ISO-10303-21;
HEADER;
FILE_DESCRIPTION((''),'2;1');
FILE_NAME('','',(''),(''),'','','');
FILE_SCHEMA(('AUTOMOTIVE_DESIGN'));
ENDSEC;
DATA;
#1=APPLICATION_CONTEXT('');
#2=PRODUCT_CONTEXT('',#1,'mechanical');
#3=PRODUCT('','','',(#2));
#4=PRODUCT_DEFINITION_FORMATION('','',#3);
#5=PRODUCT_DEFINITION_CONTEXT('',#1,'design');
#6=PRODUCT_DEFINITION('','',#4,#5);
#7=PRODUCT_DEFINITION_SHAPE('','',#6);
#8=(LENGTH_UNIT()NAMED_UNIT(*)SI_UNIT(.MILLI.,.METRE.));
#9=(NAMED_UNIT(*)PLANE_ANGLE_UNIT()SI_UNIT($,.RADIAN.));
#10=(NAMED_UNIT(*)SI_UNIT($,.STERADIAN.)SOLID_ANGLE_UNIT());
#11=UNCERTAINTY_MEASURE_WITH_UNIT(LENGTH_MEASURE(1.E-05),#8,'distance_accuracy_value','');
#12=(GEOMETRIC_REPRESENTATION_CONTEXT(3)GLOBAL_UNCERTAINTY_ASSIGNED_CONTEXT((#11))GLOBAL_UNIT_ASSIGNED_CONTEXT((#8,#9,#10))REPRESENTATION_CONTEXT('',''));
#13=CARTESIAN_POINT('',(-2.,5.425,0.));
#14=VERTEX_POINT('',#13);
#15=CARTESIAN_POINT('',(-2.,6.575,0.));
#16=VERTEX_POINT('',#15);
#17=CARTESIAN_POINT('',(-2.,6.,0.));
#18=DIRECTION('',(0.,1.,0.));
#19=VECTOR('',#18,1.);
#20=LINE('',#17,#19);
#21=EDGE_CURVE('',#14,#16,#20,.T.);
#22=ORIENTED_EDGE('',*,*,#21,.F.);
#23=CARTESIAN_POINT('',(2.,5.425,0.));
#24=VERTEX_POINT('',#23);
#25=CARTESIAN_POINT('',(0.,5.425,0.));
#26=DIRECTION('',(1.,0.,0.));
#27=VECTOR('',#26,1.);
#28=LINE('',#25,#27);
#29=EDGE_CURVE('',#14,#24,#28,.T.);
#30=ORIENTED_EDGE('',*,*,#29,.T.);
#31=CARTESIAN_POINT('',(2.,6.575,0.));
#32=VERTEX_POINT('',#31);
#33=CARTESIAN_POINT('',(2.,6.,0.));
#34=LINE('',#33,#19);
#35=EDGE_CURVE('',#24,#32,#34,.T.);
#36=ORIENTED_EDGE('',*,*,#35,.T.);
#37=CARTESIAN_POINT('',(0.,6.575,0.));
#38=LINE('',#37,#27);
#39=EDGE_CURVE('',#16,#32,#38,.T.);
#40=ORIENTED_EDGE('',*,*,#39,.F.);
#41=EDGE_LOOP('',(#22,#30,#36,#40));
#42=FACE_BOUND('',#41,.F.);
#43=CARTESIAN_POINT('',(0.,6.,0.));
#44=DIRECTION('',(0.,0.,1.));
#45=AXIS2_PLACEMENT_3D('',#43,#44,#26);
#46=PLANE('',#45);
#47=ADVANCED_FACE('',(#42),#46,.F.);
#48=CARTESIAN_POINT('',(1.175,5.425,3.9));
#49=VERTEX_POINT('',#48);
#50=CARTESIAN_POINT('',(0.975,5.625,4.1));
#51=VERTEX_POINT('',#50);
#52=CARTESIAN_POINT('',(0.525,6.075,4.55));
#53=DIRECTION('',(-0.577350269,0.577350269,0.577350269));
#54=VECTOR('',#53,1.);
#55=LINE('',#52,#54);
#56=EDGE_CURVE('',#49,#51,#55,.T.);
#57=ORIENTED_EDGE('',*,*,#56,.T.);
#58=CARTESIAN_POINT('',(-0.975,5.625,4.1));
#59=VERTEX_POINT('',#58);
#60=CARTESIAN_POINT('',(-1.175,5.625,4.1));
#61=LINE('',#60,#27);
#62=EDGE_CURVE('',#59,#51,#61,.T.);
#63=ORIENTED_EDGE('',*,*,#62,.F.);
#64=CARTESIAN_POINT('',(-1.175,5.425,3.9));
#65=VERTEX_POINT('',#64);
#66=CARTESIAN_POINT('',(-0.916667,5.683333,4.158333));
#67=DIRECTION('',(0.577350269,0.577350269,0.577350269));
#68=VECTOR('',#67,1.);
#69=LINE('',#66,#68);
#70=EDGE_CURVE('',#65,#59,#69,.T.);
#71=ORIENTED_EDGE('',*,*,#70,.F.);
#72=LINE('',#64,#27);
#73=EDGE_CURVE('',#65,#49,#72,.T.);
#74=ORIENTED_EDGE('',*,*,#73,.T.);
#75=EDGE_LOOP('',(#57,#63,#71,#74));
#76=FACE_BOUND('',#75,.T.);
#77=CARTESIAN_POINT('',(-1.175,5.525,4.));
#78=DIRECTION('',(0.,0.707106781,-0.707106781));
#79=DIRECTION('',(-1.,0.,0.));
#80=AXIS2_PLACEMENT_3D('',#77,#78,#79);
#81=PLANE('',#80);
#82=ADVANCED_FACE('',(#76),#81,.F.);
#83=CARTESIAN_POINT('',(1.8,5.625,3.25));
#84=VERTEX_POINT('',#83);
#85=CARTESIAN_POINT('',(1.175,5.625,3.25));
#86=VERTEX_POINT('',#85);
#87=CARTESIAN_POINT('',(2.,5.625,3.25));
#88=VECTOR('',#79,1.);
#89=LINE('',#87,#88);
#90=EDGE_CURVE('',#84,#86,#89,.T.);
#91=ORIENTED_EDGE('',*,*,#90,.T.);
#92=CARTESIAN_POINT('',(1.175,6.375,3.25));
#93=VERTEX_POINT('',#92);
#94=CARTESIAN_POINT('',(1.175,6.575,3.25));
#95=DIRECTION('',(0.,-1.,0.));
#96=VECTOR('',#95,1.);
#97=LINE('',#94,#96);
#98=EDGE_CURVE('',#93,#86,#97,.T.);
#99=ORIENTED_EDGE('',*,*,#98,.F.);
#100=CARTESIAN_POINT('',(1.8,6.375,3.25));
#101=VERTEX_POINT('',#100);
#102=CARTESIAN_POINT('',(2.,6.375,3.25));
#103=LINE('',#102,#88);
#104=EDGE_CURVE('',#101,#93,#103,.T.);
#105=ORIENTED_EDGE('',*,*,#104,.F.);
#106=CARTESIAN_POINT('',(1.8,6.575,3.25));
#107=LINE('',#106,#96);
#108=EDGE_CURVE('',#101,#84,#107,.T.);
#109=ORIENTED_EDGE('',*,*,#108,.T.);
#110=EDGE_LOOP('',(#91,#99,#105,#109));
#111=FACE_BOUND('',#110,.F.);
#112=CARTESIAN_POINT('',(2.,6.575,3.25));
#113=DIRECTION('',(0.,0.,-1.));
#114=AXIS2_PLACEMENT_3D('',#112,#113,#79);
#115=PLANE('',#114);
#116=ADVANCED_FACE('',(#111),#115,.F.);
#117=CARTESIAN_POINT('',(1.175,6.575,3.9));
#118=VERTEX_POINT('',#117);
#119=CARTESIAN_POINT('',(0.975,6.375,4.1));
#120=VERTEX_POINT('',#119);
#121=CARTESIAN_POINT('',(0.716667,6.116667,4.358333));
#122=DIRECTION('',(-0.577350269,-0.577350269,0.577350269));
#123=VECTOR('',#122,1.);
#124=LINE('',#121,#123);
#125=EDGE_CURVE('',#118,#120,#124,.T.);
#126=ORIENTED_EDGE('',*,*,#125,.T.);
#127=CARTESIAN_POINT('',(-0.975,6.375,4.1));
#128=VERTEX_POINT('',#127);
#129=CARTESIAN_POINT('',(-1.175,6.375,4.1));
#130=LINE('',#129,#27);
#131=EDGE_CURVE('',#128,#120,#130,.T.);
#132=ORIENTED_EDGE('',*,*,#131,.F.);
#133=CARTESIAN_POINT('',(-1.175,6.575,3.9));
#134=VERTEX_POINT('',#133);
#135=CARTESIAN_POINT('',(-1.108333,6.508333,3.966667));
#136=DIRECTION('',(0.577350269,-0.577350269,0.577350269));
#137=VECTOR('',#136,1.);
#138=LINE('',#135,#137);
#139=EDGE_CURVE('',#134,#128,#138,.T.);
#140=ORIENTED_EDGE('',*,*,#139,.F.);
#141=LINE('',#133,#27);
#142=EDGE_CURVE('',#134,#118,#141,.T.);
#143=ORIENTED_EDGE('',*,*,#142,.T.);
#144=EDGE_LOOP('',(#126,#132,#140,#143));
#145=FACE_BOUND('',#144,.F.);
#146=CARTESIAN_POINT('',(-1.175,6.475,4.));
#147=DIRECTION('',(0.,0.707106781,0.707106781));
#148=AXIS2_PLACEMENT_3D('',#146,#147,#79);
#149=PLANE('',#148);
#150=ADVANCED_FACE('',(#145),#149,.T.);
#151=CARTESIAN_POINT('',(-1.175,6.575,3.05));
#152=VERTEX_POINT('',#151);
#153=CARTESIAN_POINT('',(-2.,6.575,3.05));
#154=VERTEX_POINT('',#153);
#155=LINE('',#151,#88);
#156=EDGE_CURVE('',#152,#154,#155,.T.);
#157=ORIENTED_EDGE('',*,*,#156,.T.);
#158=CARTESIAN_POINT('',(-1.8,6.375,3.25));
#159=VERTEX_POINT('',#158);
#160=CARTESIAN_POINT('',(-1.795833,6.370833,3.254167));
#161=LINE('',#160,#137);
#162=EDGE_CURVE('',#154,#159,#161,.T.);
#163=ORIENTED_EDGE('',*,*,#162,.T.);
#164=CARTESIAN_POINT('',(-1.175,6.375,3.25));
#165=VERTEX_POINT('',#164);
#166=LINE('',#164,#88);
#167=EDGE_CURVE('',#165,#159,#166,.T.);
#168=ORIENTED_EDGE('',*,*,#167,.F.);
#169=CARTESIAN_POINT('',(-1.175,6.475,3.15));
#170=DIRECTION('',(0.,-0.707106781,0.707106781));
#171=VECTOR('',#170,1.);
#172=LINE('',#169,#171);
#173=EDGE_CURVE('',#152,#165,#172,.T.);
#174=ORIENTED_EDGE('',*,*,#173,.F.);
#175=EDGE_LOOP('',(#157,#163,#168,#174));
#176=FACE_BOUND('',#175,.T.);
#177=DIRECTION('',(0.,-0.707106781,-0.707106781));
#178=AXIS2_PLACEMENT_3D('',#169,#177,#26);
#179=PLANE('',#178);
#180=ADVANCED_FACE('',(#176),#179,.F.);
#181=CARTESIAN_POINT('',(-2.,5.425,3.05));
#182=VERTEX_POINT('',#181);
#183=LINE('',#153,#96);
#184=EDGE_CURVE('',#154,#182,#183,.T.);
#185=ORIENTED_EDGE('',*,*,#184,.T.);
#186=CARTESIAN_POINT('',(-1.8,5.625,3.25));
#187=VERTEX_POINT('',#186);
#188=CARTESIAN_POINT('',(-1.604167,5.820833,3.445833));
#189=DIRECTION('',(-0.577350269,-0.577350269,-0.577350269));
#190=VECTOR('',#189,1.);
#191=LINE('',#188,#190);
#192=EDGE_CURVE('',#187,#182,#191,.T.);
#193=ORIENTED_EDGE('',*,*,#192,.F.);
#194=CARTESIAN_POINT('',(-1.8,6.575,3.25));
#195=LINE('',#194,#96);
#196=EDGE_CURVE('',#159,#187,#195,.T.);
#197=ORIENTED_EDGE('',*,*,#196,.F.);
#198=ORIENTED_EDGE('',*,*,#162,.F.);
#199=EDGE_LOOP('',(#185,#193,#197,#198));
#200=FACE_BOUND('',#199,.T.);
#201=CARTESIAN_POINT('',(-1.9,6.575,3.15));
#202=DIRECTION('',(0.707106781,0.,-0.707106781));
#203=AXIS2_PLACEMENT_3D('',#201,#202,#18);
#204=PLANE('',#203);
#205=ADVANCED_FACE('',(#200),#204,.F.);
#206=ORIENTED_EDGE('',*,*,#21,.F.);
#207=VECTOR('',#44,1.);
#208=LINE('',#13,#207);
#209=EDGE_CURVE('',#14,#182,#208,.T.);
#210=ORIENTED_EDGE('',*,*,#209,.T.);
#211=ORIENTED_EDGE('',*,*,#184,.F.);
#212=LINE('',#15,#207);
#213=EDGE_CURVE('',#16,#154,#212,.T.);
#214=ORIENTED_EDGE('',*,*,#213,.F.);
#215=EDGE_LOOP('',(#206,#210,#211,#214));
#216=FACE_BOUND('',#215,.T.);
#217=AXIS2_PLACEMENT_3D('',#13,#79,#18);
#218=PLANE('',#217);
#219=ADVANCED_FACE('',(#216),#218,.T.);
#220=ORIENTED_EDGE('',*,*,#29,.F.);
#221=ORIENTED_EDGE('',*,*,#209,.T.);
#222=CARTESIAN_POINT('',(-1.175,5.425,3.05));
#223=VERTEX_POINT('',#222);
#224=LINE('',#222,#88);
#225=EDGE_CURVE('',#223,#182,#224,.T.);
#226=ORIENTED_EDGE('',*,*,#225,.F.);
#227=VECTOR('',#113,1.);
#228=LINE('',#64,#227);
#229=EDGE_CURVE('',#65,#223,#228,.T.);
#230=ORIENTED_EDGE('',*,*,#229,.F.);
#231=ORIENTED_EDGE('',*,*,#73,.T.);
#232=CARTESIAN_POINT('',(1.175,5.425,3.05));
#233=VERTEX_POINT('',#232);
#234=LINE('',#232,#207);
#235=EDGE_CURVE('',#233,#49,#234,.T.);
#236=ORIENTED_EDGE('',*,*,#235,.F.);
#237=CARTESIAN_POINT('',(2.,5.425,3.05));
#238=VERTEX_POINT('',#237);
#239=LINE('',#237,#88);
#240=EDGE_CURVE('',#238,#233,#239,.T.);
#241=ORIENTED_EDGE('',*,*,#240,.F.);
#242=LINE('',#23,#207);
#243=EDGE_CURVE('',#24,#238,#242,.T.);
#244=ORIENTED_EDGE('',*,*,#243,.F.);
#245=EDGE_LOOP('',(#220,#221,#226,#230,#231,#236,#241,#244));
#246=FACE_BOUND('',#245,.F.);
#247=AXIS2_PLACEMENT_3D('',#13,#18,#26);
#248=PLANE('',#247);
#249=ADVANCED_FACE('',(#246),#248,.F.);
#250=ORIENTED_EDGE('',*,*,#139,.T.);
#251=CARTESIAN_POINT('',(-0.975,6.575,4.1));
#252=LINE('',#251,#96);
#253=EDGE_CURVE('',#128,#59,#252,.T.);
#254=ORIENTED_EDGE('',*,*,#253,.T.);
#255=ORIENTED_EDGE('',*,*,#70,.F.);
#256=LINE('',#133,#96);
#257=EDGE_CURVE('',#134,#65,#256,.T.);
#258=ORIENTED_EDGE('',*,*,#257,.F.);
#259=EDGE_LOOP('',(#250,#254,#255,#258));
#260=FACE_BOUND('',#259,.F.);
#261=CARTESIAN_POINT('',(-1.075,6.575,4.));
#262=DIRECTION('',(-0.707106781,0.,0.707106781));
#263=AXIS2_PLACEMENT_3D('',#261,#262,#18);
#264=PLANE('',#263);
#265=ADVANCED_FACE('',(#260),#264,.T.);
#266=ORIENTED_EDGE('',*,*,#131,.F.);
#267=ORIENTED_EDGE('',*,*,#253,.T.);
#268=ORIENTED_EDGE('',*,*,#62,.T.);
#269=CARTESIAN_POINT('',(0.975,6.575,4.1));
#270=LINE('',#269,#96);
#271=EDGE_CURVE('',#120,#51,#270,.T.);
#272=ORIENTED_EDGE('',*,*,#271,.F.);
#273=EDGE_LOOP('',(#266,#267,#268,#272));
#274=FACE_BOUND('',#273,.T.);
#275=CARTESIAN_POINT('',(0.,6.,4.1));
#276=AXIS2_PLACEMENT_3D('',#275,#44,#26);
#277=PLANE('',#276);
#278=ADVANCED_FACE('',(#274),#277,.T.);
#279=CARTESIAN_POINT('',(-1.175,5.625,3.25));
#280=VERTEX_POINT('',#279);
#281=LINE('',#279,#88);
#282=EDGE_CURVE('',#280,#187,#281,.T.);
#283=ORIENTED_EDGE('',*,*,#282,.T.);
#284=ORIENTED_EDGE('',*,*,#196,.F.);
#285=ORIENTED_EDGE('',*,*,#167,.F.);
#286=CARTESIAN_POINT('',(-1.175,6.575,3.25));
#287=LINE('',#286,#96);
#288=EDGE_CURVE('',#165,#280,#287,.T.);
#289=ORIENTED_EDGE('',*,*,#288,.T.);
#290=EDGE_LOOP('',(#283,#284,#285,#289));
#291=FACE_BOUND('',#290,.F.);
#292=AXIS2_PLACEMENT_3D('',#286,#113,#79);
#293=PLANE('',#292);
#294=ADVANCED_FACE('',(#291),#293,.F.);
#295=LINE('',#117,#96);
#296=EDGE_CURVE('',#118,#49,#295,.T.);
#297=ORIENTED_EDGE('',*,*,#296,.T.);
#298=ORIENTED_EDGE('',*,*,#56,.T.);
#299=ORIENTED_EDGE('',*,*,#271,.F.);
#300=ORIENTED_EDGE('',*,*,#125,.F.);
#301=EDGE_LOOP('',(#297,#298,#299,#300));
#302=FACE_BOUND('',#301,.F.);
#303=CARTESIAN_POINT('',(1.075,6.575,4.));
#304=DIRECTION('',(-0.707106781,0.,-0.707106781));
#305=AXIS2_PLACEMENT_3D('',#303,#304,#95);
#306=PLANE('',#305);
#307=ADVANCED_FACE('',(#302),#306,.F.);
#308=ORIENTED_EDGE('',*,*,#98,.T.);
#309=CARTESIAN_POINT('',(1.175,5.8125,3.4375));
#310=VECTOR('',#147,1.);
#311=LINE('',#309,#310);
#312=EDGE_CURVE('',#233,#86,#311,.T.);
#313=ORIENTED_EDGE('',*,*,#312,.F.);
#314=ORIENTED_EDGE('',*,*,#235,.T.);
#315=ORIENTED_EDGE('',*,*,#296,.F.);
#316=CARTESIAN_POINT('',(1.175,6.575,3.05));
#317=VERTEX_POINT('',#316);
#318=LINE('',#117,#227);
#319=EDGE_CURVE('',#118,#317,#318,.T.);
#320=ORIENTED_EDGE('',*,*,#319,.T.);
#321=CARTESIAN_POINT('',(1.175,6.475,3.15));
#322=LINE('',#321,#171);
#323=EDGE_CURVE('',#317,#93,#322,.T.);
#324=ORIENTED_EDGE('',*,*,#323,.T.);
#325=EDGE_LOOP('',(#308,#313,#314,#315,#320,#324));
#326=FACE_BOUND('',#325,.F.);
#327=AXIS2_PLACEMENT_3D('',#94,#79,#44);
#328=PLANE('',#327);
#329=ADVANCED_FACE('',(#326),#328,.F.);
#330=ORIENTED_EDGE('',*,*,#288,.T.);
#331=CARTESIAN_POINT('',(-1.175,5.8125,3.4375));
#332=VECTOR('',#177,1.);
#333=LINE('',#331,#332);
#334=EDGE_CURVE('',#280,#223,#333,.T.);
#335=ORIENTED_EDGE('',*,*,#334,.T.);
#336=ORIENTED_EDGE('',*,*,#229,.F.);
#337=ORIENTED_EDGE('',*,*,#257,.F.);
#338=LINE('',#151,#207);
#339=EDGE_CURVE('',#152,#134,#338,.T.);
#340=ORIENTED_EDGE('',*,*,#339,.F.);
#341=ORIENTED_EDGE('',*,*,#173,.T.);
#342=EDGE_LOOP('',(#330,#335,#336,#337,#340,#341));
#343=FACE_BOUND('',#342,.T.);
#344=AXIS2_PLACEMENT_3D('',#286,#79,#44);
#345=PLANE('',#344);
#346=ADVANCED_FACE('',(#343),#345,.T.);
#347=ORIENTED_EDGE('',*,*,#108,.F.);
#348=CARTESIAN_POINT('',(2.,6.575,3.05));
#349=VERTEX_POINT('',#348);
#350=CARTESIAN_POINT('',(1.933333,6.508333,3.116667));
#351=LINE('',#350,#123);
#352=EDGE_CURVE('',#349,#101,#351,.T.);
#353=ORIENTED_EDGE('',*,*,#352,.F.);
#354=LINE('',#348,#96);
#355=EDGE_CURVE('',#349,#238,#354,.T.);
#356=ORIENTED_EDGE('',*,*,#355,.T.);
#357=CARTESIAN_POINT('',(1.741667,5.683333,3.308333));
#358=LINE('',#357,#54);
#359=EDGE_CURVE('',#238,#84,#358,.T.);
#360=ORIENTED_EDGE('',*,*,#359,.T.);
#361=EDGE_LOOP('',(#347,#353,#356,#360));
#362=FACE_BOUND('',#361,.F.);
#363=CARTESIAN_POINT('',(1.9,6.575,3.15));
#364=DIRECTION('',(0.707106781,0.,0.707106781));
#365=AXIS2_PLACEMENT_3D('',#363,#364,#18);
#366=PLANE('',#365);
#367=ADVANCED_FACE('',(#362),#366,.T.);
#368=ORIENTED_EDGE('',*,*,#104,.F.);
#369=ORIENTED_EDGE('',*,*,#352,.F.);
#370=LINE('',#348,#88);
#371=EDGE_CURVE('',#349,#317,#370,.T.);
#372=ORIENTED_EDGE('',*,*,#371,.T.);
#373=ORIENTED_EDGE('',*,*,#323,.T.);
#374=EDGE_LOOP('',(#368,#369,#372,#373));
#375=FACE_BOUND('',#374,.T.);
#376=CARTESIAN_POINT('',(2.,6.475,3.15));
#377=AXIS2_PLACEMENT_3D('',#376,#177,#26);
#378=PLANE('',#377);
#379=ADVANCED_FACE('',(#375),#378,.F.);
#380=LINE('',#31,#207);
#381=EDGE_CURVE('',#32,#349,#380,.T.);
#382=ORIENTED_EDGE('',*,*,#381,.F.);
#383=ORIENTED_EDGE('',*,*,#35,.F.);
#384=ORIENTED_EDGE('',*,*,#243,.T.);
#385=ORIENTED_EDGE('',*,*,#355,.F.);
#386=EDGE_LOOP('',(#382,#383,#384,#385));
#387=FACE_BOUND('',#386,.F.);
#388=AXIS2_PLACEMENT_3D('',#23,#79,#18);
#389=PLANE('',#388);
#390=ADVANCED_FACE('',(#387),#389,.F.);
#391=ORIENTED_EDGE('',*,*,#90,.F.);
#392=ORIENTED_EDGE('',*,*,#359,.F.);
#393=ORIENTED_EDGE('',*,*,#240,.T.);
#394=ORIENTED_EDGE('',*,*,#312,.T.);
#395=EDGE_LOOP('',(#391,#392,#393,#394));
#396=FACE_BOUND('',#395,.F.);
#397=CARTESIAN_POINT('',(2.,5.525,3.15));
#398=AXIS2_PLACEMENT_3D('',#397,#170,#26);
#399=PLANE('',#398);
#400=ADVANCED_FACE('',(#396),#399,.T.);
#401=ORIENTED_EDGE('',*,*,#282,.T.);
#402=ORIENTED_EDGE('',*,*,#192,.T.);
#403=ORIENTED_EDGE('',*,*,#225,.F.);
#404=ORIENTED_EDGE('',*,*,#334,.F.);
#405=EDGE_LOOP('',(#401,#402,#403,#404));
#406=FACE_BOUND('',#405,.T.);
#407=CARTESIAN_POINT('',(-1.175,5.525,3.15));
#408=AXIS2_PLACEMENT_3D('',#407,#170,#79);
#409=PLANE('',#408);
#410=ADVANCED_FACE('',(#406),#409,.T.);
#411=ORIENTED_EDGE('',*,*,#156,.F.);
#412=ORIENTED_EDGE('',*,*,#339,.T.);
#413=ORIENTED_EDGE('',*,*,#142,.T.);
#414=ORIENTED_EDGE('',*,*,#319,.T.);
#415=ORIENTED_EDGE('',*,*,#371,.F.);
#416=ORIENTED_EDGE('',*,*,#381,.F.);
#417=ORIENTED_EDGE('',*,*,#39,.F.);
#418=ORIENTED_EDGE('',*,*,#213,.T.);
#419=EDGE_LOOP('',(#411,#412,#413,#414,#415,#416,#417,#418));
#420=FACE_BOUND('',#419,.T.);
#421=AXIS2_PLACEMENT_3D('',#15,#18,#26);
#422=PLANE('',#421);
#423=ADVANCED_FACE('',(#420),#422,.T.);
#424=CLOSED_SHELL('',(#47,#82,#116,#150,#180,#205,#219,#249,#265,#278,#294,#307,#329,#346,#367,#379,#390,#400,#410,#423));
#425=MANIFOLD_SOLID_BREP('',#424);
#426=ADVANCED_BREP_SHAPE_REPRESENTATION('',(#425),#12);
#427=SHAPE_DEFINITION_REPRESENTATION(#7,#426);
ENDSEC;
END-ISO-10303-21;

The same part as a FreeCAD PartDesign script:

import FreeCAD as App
import Part
import Sketcher

V = App.Vector


def edges_at(feature, points):
    """Names of the edges that pass closest to the given points."""
    edges = feature.Shape.Edges
    near = lambda p: min(range(len(edges)), key=lambda i: edges[i].distToShape(Part.Vertex(*p))[0])
    return sorted({f"Edge{near(p) + 1}" for p in points})

doc = App.newDocument("Part")
params = doc.addObject("Spreadsheet::Sheet", "Params")
for row, (alias, value) in enumerate([
    ("sketch1_width", "4 mm"),
    ("sketch1_height", "1.15 mm"),
    ("pad1_length", "4.1 mm"),
    ("sketch2_height", "0.85 mm"),
    ("pocket1_length", "5 mm"),
    ("chamfer_size", "0.2 mm"),
], start=1):
    params.set(f"A{row}", alias)
    params.set(f"B{row}", "=" + value)
    params.setAlias(f"B{row}", alias)

body = doc.addObject("PartDesign::Body", "Body")

# Sketch on XY plane
sketch1 = body.newObject("Sketcher::SketchObject", "Sketch")
sketch1.AttachmentSupport = (doc.getObject("XY_Plane"), [""])
sketch1.MapMode = "FlatFace"
sketch1.addGeometry([
    Part.LineSegment(V(-2, 0.575, 0), V(-2, -0.575, 0)),
    Part.LineSegment(V(-2, -0.575, 0), V(2, -0.575, 0)),
    Part.LineSegment(V(2, -0.575, 0), V(2, 0.575, 0)),
    Part.LineSegment(V(2, 0.575, 0), V(-2, 0.575, 0)),
], False)
sketch1.addConstraint([
    Sketcher.Constraint("Coincident", 0, 2, 1, 1),
    Sketcher.Constraint("Coincident", 1, 2, 2, 1),
    Sketcher.Constraint("Coincident", 2, 2, 3, 1),
    Sketcher.Constraint("Coincident", 3, 2, 0, 1),
    Sketcher.Constraint("Vertical", 0),
    Sketcher.Constraint("Horizontal", 1),
    Sketcher.Constraint("Vertical", 2),
    Sketcher.Constraint("Horizontal", 3),
    Sketcher.Constraint("Symmetric", 0, 2, 2, 2, -1, 1),
    Sketcher.Constraint("DistanceX", 1, 1, 1, 2, 4.0),
    Sketcher.Constraint("DistanceY", 0, 2, 0, 1, 1.15),
])
sketch1.setExpression("Constraints[9]", "Params.sketch1_width")
sketch1.setExpression("Constraints[10]", "Params.sketch1_height")
pad1 = body.newObject("PartDesign::Pad", "Pad")
pad1.Profile = sketch1
pad1.setExpression("Length", "Params.pad1_length")

# Sketch on XZ plane
sketch2 = body.newObject("Sketcher::SketchObject", "Sketch001")
sketch2.AttachmentSupport = (doc.getObject("XZ_Plane"), [""])
sketch2.MapMode = "FlatFace"
sketch2.AttachmentOffset = App.Placement(V(0, 0, -0.575), App.Rotation())
sketch2.addGeometry([
    Part.LineSegment(V(2, 4.1, 0), V(2, 3.25, 0)),  # 0
    Part.LineSegment(V(2, 3.25, 0), V(1.175, 3.25, 0)),  # 1
    Part.LineSegment(V(1.175, 3.25, 0), V(1.175, 4.1, 0)),  # 2
    Part.LineSegment(V(1.175, 4.1, 0), V(2, 4.1, 0)),  # 3
    Part.LineSegment(V(-1.175, 4.1, 0), V(-1.175, 3.25, 0)),  # 4
    Part.LineSegment(V(-1.175, 3.25, 0), V(-2, 3.25, 0)),  # 5
    Part.LineSegment(V(-2, 3.25, 0), V(-2, 4.1, 0)),  # 6
    Part.LineSegment(V(-2, 4.1, 0), V(-1.175, 4.1, 0)),  # 7
], False)
sketch2.addConstraint([
    Sketcher.Constraint("Coincident", 0, 2, 1, 1),
    Sketcher.Constraint("Coincident", 1, 2, 2, 1),
    Sketcher.Constraint("Coincident", 2, 2, 3, 1),
    Sketcher.Constraint("Coincident", 3, 2, 0, 1),
    Sketcher.Constraint("Coincident", 4, 2, 5, 1),
    Sketcher.Constraint("Coincident", 5, 2, 6, 1),
    Sketcher.Constraint("Coincident", 6, 2, 7, 1),
    Sketcher.Constraint("Coincident", 7, 2, 4, 1),
    Sketcher.Constraint("Vertical", 0),
    Sketcher.Constraint("Horizontal", 1),
    Sketcher.Constraint("Vertical", 2),
    Sketcher.Constraint("Horizontal", 3),
    Sketcher.Constraint("Vertical", 4),
    Sketcher.Constraint("Horizontal", 5),
    Sketcher.Constraint("Vertical", 6),
    Sketcher.Constraint("Horizontal", 7),
    Sketcher.Constraint("Symmetric", 1, 2, 4, 2, -2),
    Sketcher.Constraint("Symmetric", 3, 2, 6, 2, -2),
    Sketcher.Constraint("DistanceX", -1, 1, 0, 2, 2.0),
    Sketcher.Constraint("DistanceY", 0, 2, 0, 1, 0.85),
    Sketcher.Constraint("DistanceY", -1, 1, 2, 2, 4.1),
    Sketcher.Constraint("DistanceX", 1, 2, 1, 1, 0.825),
])
sketch2.setExpression("Constraints[19]", "Params.sketch2_height")
pocket1 = body.newObject("PartDesign::Pocket", "Pocket")
pocket1.Profile = sketch2
pocket1.setExpression("Length", "Params.pocket1_length")
pocket1.Reversed = True
doc.recompute()

chamfer = body.newObject("PartDesign::Chamfer", "Chamfer")
chamfer.Base = (pocket1, edges_at(pocket1, [
    (0, 0.575, 4.1),
    (0, -0.575, 4.1),
    (1.587, 0.575, 3.25),
    (-1.587, 0.575, 3.25),
    (-1.587, -0.575, 3.25),
    (1.587, -0.575, 3.25),
    (2, 0, 3.25),
    (-2, 0, 3.25),
    (1.175, 0, 4.1),
    (-1.175, 0, 4.1),
]))
chamfer.setExpression("Size", "Params.chamfer_size")
body2 = doc.addObject("PartDesign::Body", "Body001")
doc.recompute()

body.Placement = App.Placement(V(0, 6, 0), App.Rotation(V(0, 0, 1), 0))
boolean = body2.newObject("PartDesign::Boolean", "Boolean")
boolean.Type = "Fuse"
boolean.addObjects([body])

doc.recompute()
